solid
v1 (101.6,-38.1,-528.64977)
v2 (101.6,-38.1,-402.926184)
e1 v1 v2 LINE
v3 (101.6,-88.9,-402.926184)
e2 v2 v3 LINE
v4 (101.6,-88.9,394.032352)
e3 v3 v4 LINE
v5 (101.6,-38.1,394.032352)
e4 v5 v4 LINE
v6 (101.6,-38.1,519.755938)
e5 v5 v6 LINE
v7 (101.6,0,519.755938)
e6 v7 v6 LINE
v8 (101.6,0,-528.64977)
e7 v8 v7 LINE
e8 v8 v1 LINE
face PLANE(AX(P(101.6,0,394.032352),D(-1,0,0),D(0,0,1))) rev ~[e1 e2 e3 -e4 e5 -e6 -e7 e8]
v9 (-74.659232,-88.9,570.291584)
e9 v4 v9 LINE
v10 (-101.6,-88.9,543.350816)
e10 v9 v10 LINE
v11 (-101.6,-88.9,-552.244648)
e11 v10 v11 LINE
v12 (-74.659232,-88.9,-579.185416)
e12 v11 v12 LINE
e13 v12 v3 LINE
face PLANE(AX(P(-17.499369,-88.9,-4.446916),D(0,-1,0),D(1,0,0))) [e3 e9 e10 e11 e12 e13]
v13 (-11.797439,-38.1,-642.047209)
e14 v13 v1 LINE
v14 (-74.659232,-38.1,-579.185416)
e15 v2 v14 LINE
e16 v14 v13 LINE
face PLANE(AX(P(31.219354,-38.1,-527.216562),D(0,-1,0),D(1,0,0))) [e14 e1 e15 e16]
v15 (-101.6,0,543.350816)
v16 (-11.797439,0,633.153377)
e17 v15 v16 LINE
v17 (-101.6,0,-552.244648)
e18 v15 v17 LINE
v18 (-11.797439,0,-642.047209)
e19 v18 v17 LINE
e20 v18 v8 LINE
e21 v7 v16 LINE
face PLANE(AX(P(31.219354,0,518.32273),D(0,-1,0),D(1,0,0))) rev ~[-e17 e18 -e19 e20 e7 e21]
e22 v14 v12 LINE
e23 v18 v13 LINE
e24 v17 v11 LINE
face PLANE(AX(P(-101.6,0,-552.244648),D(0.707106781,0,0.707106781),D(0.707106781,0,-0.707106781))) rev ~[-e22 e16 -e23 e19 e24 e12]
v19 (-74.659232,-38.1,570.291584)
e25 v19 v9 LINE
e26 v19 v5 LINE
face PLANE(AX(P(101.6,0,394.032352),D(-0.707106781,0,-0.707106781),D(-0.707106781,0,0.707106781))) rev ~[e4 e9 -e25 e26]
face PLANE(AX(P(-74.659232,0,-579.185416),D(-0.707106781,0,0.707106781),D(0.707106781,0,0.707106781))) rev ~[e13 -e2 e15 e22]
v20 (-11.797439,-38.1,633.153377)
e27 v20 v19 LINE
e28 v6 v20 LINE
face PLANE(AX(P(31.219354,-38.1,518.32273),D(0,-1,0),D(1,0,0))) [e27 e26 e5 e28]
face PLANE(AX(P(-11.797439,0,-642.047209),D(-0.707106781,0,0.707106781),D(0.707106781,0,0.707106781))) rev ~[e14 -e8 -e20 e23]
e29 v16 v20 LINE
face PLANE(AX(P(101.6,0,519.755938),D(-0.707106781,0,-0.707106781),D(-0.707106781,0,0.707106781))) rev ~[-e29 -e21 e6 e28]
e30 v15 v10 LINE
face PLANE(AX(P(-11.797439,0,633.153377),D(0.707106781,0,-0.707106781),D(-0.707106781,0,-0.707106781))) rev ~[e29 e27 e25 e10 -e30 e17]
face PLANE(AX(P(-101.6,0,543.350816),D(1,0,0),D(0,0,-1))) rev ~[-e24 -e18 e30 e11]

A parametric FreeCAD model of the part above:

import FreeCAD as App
import Part
import Sketcher

V = App.Vector
Q = App.Units.Quantity

doc = App.newDocument("Part")
body = doc.addObject("PartDesign::Body", "Body")

# Sketch on XZ plane
sketch1 = body.newObject("Sketcher::SketchObject", "Sketch")
sketch1.AttachmentSupport = (doc.getObject("XZ_Plane"), [""])
sketch1.MapMode = "FlatFace"
sketch1.addGeometry([
    Part.LineSegment(V(-102, 543, 0), V(-102, -552, 0)),  # 0
    Part.LineSegment(V(-102, -552, 0), V(-75, -579, 0)),  # 1
    Part.LineSegment(V(-75, -579, 0), V(102, -403, 0)),  # 2
    Part.LineSegment(V(102, -403, 0), V(102, 394, 0)),  # 3
    Part.LineSegment(V(102, 394, 0), V(-75, 570, 0)),  # 4
    Part.LineSegment(V(-75, 570, 0), V(-102, 543, 0)),  # 5
], False)
sketch1.addConstraint([
    Sketcher.Constraint("Coincident", 0, 2, 1, 1),
    Sketcher.Constraint("Coincident", 1, 2, 2, 1),
    Sketcher.Constraint("Coincident", 2, 2, 3, 1),
    Sketcher.Constraint("Coincident", 3, 2, 4, 1),
    Sketcher.Constraint("Coincident", 4, 2, 5, 1),
    Sketcher.Constraint("Coincident", 5, 2, 0, 1),
    Sketcher.Constraint("Vertical", 0),
    Sketcher.Constraint("Vertical", 3),
    Sketcher.Constraint("Perpendicular", 1, 2),
    Sketcher.Constraint("Perpendicular", 2, 4),
    Sketcher.Constraint("Perpendicular", 4, 5),
    Sketcher.Constraint("Vertical", 1, 2, 4, 2),
    Sketcher.Constraint("Equal", 2, 4),
    Sketcher.Constraint("DistanceX", 0, 2, -1, 1, Q("4 in")),
    Sketcher.Constraint("DistanceX", -1, 1, 2, 2, Q("4 in")),
    Sketcher.Constraint("Distance", 1, Q("1.5 in")),
    Sketcher.Constraint("DistanceY", 0, 2, 3, 2, Q("37.255 in")),
    Sketcher.Constraint("DistanceY", 0, 2, -1, 1, 552.244648),
])
pad1 = body.newObject("PartDesign::Pad", "Pad")
pad1.Profile = sketch1
pad1.Length = Q("3.5 in")

# Sketch on XZ plane
sketch2 = body.newObject("Sketcher::SketchObject", "Sketch001")
sketch2.AttachmentSupport = (doc.getObject("XZ_Plane"), [""])
sketch2.MapMode = "FlatFace"
sketch2.addGeometry([
    Part.LineSegment(V(102, 394, 0), V(102, 520, 0)),  # 0
    Part.LineSegment(V(102, 520, 0), V(-12, 633, 0)),  # 1
    Part.LineSegment(V(-12, 633, 0), V(-75, 570, 0)),  # 2
    Part.LineSegment(V(-75, 570, 0), V(102, 394, 0)),  # 3
    Part.LineSegment(V(102, -403, 0), V(-75, -579, 0)),  # 4
    Part.LineSegment(V(-75, -579, 0), V(-12, -642, 0)),  # 5
    Part.LineSegment(V(-12, -642, 0), V(102, -529, 0)),  # 6
    Part.LineSegment(V(102, -529, 0), V(102, -403, 0)),  # 7
], False)
sketch2.addConstraint([
    Sketcher.Constraint("Coincident", 0, 2, 1, 1),
    Sketcher.Constraint("Coincident", 1, 2, 2, 1),
    Sketcher.Constraint("Coincident", 2, 2, 3, 1),
    Sketcher.Constraint("Coincident", 3, 2, 0, 1),
    Sketcher.Constraint("Coincident", 4, 2, 5, 1),
    Sketcher.Constraint("Coincident", 5, 2, 6, 1),
    Sketcher.Constraint("Coincident", 6, 2, 7, 1),
    Sketcher.Constraint("Coincident", 7, 2, 4, 1),
    Sketcher.Constraint("Vertical", 0),
    Sketcher.Constraint("Vertical", 7),
    Sketcher.Constraint("Perpendicular", 1, 2),
    Sketcher.Constraint("Perpendicular", 2, 3),
    Sketcher.Constraint("Perpendicular", 3, 4),
    Sketcher.Constraint("Perpendicular", 4, 5),
    Sketcher.Constraint("Perpendicular", 5, 6),
    Sketcher.Constraint("Vertical", 2, 2, 4, 2),
    Sketcher.Constraint("Vertical", 1, 2, 5, 2),
    Sketcher.Constraint("Vertical", 3, 2, 6, 2),
    Sketcher.Constraint("Equal", 3, 4),
    Sketcher.Constraint("DistanceX", -1, 1, 0, 2, Q("4 in")),
    Sketcher.Constraint("Distance", 2, Q("3.5 in")),
    Sketcher.Constraint("DistanceY", 4, 2, 2, 2, Q("45.255 in")),
    Sketcher.Constraint("DistanceY", -1, 1, 0, 2, 519.755938),
    Sketcher.Constraint("DistanceX", 1, 2, -1, 1, 11.797439),
])
pad2 = body.newObject("PartDesign::Pad", "Pad001")
pad2.Profile = sketch2
pad2.Length = Q("1.5 in")

doc.recompute()
